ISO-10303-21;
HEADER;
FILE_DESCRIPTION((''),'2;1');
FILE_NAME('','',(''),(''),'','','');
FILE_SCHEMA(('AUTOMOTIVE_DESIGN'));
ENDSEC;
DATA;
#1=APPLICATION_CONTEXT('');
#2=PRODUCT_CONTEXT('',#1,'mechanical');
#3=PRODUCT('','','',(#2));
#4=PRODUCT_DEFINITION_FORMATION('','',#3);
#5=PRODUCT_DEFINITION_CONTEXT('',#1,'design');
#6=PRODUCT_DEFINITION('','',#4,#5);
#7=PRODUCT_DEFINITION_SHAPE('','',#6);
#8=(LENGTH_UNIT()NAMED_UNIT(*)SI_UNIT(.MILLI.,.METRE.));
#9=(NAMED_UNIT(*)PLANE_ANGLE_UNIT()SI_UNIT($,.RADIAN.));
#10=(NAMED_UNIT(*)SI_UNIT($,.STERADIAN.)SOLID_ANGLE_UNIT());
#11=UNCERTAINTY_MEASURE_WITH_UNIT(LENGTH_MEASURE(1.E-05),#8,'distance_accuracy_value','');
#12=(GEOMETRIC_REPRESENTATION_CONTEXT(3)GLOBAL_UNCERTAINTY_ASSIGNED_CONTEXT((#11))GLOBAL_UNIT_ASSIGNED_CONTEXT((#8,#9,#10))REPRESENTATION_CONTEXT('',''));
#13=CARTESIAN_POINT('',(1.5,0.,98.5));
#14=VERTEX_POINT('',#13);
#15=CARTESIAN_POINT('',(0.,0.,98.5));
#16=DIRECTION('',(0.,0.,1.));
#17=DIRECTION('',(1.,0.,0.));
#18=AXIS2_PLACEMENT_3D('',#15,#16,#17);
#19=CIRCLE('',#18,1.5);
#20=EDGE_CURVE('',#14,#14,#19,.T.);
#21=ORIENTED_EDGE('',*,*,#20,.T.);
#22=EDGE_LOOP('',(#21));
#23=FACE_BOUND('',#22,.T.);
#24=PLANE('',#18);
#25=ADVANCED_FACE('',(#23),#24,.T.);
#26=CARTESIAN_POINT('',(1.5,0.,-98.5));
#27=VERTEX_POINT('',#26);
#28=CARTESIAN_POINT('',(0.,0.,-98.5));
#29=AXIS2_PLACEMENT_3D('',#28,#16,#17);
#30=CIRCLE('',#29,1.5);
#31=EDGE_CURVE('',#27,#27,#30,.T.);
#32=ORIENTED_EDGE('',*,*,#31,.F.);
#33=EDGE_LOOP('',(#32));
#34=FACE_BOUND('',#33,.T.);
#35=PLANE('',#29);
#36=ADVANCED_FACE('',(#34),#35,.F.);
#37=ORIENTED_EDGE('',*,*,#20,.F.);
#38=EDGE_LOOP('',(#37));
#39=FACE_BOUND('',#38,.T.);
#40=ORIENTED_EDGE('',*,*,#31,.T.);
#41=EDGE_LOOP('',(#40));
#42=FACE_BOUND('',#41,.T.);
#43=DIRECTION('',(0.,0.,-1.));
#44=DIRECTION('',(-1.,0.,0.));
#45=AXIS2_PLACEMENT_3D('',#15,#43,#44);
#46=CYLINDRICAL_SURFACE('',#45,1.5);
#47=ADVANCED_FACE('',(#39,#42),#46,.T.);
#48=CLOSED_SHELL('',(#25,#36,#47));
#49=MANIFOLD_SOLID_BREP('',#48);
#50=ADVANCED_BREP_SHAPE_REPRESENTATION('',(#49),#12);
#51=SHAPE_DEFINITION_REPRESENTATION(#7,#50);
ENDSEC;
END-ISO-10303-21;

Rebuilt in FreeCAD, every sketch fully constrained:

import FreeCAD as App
import Part
import Sketcher
from FreeCAD import Vector

doc = App.newDocument("Part")
body = doc.addObject("PartDesign::Body", "Body")

# Sketch on XY plane
sketch1 = body.newObject("Sketcher::SketchObject", "Sketch")
sketch1.AttachmentSupport = (doc.getObject("XY_Plane"), [""])
sketch1.MapMode = "FlatFace"
sketch1.addGeometry(Part.Circle(Vector(0, 0, 0), Vector(0, 0, 1), 1.5), False)
sketch1.addConstraint([
    Sketcher.Constraint("Coincident", 0, 3, -1, 1),
    Sketcher.Constraint("Diameter", 0, 3.0),
])
pad1 = body.newObject("PartDesign::Pad", "Pad")
pad1.Profile = sketch1
pad1.Length = 197
pad1.Midplane = True

doc.recompute()
